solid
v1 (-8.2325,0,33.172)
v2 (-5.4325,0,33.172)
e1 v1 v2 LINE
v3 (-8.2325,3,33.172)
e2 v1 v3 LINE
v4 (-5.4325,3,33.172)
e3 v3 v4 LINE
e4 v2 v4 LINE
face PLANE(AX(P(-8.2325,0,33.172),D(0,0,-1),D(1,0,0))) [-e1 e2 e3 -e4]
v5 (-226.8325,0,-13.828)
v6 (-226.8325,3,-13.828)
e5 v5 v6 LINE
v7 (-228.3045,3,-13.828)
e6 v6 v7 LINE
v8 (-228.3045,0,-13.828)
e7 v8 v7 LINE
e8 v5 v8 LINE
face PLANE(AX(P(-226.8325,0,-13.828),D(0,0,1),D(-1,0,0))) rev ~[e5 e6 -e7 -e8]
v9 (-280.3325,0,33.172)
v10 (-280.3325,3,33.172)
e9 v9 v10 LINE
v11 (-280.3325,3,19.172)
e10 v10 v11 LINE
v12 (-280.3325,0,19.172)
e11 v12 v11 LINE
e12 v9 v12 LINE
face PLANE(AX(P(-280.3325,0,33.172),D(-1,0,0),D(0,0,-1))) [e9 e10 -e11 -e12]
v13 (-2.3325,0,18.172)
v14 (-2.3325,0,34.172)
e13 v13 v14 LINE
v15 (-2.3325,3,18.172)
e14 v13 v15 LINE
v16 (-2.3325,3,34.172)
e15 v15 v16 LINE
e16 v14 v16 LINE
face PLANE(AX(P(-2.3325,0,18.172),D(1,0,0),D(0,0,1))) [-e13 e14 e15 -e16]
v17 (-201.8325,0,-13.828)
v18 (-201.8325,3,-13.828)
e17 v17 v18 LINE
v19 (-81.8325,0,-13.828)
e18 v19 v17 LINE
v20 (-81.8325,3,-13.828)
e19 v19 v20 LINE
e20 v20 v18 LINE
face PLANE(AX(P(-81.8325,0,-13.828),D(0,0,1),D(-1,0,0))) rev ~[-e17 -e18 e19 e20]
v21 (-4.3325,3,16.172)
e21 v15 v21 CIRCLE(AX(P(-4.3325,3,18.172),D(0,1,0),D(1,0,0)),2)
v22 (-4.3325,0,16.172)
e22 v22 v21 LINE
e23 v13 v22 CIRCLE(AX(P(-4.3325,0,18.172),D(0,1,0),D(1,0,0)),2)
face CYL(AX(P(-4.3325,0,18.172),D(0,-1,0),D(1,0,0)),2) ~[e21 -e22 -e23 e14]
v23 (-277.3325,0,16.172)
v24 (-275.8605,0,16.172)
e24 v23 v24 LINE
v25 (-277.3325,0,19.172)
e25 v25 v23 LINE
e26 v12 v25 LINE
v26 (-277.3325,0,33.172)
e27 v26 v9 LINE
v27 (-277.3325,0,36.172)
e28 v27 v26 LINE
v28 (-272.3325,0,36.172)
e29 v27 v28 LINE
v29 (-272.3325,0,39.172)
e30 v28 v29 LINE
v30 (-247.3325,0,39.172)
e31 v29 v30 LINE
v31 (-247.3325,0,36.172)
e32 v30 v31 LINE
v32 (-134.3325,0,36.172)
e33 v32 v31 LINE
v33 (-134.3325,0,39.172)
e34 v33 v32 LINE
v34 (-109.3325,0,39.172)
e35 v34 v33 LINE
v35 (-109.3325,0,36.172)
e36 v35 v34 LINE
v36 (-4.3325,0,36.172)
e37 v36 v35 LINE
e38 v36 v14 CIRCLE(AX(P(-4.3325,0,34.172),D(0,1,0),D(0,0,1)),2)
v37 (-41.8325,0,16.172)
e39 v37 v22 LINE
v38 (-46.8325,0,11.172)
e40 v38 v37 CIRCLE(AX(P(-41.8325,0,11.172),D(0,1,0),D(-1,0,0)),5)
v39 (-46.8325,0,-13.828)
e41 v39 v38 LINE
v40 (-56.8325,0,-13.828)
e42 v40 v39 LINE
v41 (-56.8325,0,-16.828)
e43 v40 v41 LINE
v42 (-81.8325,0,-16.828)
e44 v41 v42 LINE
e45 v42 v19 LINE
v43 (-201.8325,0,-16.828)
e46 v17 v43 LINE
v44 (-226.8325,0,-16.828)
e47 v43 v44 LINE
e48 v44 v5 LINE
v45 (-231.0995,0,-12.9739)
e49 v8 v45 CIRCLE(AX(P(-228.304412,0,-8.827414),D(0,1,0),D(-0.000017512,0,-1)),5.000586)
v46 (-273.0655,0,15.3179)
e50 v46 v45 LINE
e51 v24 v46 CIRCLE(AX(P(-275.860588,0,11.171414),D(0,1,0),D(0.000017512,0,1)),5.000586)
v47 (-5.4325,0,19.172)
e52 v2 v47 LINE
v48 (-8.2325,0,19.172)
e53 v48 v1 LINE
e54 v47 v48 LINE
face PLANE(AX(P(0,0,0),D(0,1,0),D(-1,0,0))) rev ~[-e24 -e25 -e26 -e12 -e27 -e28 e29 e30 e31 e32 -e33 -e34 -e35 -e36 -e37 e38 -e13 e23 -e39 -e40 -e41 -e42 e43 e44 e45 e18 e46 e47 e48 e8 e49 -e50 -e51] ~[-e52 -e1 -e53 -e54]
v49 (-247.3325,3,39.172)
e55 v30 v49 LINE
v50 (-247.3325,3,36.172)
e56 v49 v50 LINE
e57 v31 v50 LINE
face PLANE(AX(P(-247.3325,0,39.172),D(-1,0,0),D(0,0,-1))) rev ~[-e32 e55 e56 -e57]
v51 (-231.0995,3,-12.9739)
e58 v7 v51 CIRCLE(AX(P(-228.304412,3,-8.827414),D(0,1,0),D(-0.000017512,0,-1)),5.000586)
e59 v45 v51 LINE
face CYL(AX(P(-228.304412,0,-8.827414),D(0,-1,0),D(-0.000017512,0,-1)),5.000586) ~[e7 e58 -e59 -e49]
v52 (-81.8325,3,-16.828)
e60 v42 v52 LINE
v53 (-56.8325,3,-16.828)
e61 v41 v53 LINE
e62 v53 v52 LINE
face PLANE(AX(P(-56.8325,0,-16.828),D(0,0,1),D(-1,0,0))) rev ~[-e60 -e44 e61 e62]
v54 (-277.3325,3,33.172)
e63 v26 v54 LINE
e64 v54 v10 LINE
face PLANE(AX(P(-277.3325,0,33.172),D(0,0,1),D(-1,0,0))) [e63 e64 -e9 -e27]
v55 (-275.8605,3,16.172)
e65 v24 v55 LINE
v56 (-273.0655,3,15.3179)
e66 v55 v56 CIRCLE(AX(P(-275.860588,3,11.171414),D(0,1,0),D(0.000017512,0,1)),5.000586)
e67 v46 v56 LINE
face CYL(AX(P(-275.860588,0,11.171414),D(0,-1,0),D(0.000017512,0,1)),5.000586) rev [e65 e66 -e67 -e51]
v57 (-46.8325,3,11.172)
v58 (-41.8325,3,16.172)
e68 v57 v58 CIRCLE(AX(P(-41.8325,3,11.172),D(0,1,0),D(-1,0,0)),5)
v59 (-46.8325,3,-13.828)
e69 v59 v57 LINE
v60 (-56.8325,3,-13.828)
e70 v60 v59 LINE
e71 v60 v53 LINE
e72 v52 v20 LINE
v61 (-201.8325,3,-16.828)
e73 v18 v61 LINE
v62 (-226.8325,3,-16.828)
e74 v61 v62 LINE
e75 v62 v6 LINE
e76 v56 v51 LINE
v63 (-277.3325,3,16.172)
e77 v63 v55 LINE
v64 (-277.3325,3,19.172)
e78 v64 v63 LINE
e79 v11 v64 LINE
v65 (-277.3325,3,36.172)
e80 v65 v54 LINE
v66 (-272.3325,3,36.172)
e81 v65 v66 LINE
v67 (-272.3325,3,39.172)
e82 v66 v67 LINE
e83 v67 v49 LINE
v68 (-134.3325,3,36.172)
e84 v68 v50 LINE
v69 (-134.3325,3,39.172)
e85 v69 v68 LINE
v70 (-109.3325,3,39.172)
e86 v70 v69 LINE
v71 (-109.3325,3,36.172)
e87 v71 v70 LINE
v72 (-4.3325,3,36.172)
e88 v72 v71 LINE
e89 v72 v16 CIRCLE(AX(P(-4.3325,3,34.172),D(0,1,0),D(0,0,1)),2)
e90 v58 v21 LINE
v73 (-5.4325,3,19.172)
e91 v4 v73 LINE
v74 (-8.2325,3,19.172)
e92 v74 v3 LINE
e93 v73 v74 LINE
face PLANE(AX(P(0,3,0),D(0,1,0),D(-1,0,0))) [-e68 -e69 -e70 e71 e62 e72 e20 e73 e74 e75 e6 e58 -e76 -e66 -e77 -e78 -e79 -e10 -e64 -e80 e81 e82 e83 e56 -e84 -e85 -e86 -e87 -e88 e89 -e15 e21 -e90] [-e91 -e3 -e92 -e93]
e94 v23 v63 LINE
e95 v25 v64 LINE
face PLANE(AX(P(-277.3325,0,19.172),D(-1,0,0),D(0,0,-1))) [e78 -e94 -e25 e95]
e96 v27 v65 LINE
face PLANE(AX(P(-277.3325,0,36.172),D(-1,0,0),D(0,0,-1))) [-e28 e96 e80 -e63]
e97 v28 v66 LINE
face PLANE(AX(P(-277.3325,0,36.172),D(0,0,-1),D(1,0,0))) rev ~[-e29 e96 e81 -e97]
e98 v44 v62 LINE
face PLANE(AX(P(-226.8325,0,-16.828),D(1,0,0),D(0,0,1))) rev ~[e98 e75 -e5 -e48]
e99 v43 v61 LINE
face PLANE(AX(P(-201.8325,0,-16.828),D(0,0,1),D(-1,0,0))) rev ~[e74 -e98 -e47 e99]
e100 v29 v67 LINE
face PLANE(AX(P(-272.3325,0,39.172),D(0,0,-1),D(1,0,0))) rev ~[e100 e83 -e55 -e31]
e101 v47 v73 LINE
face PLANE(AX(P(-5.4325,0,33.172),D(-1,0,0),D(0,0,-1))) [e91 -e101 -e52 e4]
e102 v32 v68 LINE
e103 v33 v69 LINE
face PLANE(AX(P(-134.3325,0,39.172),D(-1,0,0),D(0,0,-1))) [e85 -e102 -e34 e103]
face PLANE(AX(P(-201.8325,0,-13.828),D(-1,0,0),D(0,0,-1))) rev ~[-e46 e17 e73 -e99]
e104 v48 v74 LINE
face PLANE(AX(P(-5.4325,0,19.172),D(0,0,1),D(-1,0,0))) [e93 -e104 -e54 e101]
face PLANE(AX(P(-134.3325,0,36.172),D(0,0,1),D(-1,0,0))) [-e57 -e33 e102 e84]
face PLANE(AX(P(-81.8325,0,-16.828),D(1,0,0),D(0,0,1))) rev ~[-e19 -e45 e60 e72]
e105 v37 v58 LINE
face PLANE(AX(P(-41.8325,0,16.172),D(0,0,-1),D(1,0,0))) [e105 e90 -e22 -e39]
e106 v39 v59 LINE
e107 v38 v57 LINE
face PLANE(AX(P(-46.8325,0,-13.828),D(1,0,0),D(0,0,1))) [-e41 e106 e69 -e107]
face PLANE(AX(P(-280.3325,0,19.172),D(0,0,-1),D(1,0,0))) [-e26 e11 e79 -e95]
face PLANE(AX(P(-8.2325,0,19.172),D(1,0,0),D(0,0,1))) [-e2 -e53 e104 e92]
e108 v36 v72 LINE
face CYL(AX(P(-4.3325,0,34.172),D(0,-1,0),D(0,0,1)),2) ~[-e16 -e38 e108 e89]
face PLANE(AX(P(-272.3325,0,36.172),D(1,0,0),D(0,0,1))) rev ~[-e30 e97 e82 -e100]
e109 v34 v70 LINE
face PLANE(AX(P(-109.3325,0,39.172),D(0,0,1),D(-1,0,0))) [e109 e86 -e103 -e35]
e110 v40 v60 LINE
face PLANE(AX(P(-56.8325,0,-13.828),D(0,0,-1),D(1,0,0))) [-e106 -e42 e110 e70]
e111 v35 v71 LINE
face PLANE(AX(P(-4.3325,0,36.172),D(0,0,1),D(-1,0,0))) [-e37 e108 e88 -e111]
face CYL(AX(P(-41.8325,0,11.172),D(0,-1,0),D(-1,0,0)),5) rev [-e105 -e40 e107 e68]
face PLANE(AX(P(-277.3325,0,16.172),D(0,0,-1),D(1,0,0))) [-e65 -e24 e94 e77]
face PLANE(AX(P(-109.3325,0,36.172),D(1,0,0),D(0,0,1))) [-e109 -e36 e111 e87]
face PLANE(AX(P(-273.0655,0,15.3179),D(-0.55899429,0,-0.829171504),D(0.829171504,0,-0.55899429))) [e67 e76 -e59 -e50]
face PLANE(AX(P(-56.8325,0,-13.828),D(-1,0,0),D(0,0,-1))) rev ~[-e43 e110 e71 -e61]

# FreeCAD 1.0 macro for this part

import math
import FreeCAD as App
import Part
import Sketcher
from FreeCAD import Vector


def add_polygon(sketch, points):
    """Adds a closed chain of lines whose ends are joined by coincident constraints."""
    first, n = sketch.GeometryCount, len(points)
    for a, b in zip(points, points[1:] + points[:1]):
        sketch.addGeometry(Part.LineSegment(App.Vector(*a, 0), App.Vector(*b, 0)), False)
    for i in range(n):
        sketch.addConstraint(Sketcher.Constraint("Coincident", first + i, 2, first + (i + 1) % n, 1))

doc = App.newDocument("Part")
body = doc.addObject("PartDesign::Body", "Body")

sketch1 = doc.addObject("Sketcher::SketchObject", "Sketch")
body.addObject(sketch1)
sketch1.AttachmentSupport = (doc.XZ_Plane, [""])
sketch1.MapMode = "FlatFace"
sketch1.addGeometry(Part.LineSegment(Vector(-109.3, 36.2, 0), Vector(-4.3, 36.2, 0)), False)
sketch1.addGeometry(Part.ArcOfCircle(Part.Circle(Vector(-4.3, 34.2, 0), Vector(0, 0, 1), 2), math.radians(0), math.radians(90)), False)
sketch1.addGeometry(Part.LineSegment(Vector(-2.3, 34.2, 0), Vector(-2.3, 18.2, 0)), False)
sketch1.addGeometry(Part.ArcOfCircle(Part.Circle(Vector(-4.3, 18.2, 0), Vector(0, 0, 1), 2), math.radians(-90), math.radians(0)), False)
sketch1.addGeometry(Part.LineSegment(Vector(-4.3, 16.2, 0), Vector(-41.8, 16.2, 0)), False)
sketch1.addGeometry(Part.ArcOfCircle(Part.Circle(Vector(-41.8, 11.2, 0), Vector(0, 0, 1), 5), math.radians(90), math.radians(180)), False)
sketch1.addGeometry(Part.LineSegment(Vector(-46.8, 11.2, 0), Vector(-46.8, -13.8, 0)), False)
sketch1.addGeometry(Part.LineSegment(Vector(-46.8, -13.8, 0), Vector(-56.8, -13.8, 0)), False)
sketch1.addGeometry(Part.LineSegment(Vector(-56.8, -13.8, 0), Vector(-56.8, -16.8, 0)), False)
sketch1.addGeometry(Part.LineSegment(Vector(-56.8, -16.8, 0), Vector(-81.8, -16.8, 0)), False)
sketch1.addGeometry(Part.LineSegment(Vector(-81.8, -16.8, 0), Vector(-81.8, -13.8, 0)), False)
sketch1.addGeometry(Part.LineSegment(Vector(-81.8, -13.8, 0), Vector(-201.8, -13.8, 0)), False)
sketch1.addGeometry(Part.LineSegment(Vector(-201.8, -13.8, 0), Vector(-201.8, -16.8, 0)), False)
sketch1.addGeometry(Part.LineSegment(Vector(-201.8, -16.8, 0), Vector(-226.8, -16.8, 0)), False)
sketch1.addGeometry(Part.LineSegment(Vector(-226.8, -16.8, 0), Vector(-226.8, -13.8, 0)), False)
sketch1.addGeometry(Part.LineSegment(Vector(-226.8, -13.8, 0), Vector(-228.3, -13.8, 0)), False)
sketch1.addGeometry(Part.ArcOfCircle(Part.Circle(Vector(-228.3, -8.8, 0), Vector(0, 0, 1), 5), math.radians(-124), math.radians(-90)), False)
sketch1.addGeometry(Part.LineSegment(Vector(-231.1, -13, 0), Vector(-273.1, 15.3, 0)), False)
sketch1.addGeometry(Part.ArcOfCircle(Part.Circle(Vector(-275.9, 11.2, 0), Vector(0, 0, 1), 5), math.radians(56), math.radians(90)), False)
sketch1.addGeometry(Part.LineSegment(Vector(-275.9, 16.2, 0), Vector(-277.3, 16.2, 0)), False)
sketch1.addGeometry(Part.LineSegment(Vector(-277.3, 16.2, 0), Vector(-277.3, 19.2, 0)), False)
sketch1.addGeometry(Part.LineSegment(Vector(-277.3, 19.2, 0), Vector(-280.3, 19.2, 0)), False)
sketch1.addGeometry(Part.LineSegment(Vector(-280.3, 19.2, 0), Vector(-280.3, 33.2, 0)), False)
sketch1.addGeometry(Part.LineSegment(Vector(-280.3, 33.2, 0), Vector(-277.3, 33.2, 0)), False)
sketch1.addGeometry(Part.LineSegment(Vector(-277.3, 33.2, 0), Vector(-277.3, 36.2, 0)), False)
sketch1.addGeometry(Part.LineSegment(Vector(-277.3, 36.2, 0), Vector(-272.3, 36.2, 0)), False)
sketch1.addGeometry(Part.LineSegment(Vector(-272.3, 36.2, 0), Vector(-272.3, 39.2, 0)), False)
sketch1.addGeometry(Part.LineSegment(Vector(-272.3, 39.2, 0), Vector(-247.3, 39.2, 0)), False)
sketch1.addGeometry(Part.LineSegment(Vector(-247.3, 39.2, 0), Vector(-247.3, 36.2, 0)), False)
sketch1.addGeometry(Part.LineSegment(Vector(-247.3, 36.2, 0), Vector(-134.3, 36.2, 0)), False)
sketch1.addGeometry(Part.LineSegment(Vector(-134.3, 36.2, 0), Vector(-134.3, 39.2, 0)), False)
sketch1.addGeometry(Part.LineSegment(Vector(-134.3, 39.2, 0), Vector(-109.3, 39.2, 0)), False)
sketch1.addGeometry(Part.LineSegment(Vector(-109.3, 39.2, 0), Vector(-109.3, 36.2, 0)), False)
add_polygon(sketch1, [(-8.2, 19.2), (-5.4, 19.2), (-5.4, 33.2), (-8.2, 33.2)])
sketch1.addConstraint(Sketcher.Constraint("Tangent", 0, 2, 1, 2))
sketch1.addConstraint(Sketcher.Constraint("Tangent", 1, 1, 2, 1))
sketch1.addConstraint(Sketcher.Constraint("Tangent", 2, 2, 3, 2))
sketch1.addConstraint(Sketcher.Constraint("Tangent", 3, 1, 4, 1))
sketch1.addConstraint(Sketcher.Constraint("Tangent", 4, 2, 5, 1))
sketch1.addConstraint(Sketcher.Constraint("Tangent", 5, 2, 6, 1))
sketch1.addConstraint(Sketcher.Constraint("Coincident", 6, 2, 7, 1))
sketch1.addConstraint(Sketcher.Constraint("Coincident", 7, 2, 8, 1))
sketch1.addConstraint(Sketcher.Constraint("Coincident", 8, 2, 9, 1))
sketch1.addConstraint(Sketcher.Constraint("Coincident", 9, 2, 10, 1))
sketch1.addConstraint(Sketcher.Constraint("Coincident", 10, 2, 11, 1))
sketch1.addConstraint(Sketcher.Constraint("Coincident", 11, 2, 12, 1))
sketch1.addConstraint(Sketcher.Constraint("Coincident", 12, 2, 13, 1))
sketch1.addConstraint(Sketcher.Constraint("Coincident", 13, 2, 14, 1))
sketch1.addConstraint(Sketcher.Constraint("Coincident", 14, 2, 15, 1))
sketch1.addConstraint(Sketcher.Constraint("Tangent", 15, 2, 16, 2))
sketch1.addConstraint(Sketcher.Constraint("Tangent", 16, 1, 17, 1))
sketch1.addConstraint(Sketcher.Constraint("Tangent", 17, 2, 18, 1))
sketch1.addConstraint(Sketcher.Constraint("Tangent", 18, 2, 19, 1))
sketch1.addConstraint(Sketcher.Constraint("Coincident", 19, 2, 20, 1))
sketch1.addConstraint(Sketcher.Constraint("Coincident", 20, 2, 21, 1))
sketch1.addConstraint(Sketcher.Constraint("Coincident", 21, 2, 22, 1))
sketch1.addConstraint(Sketcher.Constraint("Coincident", 22, 2, 23, 1))
sketch1.addConstraint(Sketcher.Constraint("Coincident", 23, 2, 24, 1))
sketch1.addConstraint(Sketcher.Constraint("Coincident", 24, 2, 25, 1))
sketch1.addConstraint(Sketcher.Constraint("Coincident", 25, 2, 26, 1))
sketch1.addConstraint(Sketcher.Constraint("Coincident", 26, 2, 27, 1))
sketch1.addConstraint(Sketcher.Constraint("Coincident", 27, 2, 28, 1))
sketch1.addConstraint(Sketcher.Constraint("Coincident", 28, 2, 29, 1))
sketch1.addConstraint(Sketcher.Constraint("Coincident", 29, 2, 30, 1))
sketch1.addConstraint(Sketcher.Constraint("Coincident", 30, 2, 31, 1))
sketch1.addConstraint(Sketcher.Constraint("Coincident", 31, 2, 32, 1))
sketch1.addConstraint(Sketcher.Constraint("Coincident", 32, 2, 0, 1))
sketch1.addConstraint(Sketcher.Constraint("Horizontal", 0))
sketch1.addConstraint(Sketcher.Constraint("Vertical", 2))
sketch1.addConstraint(Sketcher.Constraint("Horizontal", 4))
sketch1.addConstraint(Sketcher.Constraint("Vertical", 6))
sketch1.addConstraint(Sketcher.Constraint("Horizontal", 7))
sketch1.addConstraint(Sketcher.Constraint("Vertical", 8))
sketch1.addConstraint(Sketcher.Constraint("Horizontal", 9))
sketch1.addConstraint(Sketcher.Constraint("Vertical", 10))
sketch1.addConstraint(Sketcher.Constraint("Horizontal", 11))
sketch1.addConstraint(Sketcher.Constraint("Vertical", 12))
sketch1.addConstraint(Sketcher.Constraint("Horizontal", 13))
sketch1.addConstraint(Sketcher.Constraint("Vertical", 14))
sketch1.addConstraint(Sketcher.Constraint("Horizontal", 15))
sketch1.addConstraint(Sketcher.Constraint("Horizontal", 19))
sketch1.addConstraint(Sketcher.Constraint("Vertical", 20))
sketch1.addConstraint(Sketcher.Constraint("Horizontal", 21))
sketch1.addConstraint(Sketcher.Constraint("Vertical", 22))
sketch1.addConstraint(Sketcher.Constraint("Horizontal", 23))
sketch1.addConstraint(Sketcher.Constraint("Vertical", 24))
sketch1.addConstraint(Sketcher.Constraint("Horizontal", 25))
sketch1.addConstraint(Sketcher.Constraint("Vertical", 26))
sketch1.addConstraint(Sketcher.Constraint("Horizontal", 27))
sketch1.addConstraint(Sketcher.Constraint("Vertical", 28))
sketch1.addConstraint(Sketcher.Constraint("Horizontal", 29))
sketch1.addConstraint(Sketcher.Constraint("Vertical", 30))
sketch1.addConstraint(Sketcher.Constraint("Horizontal", 31))
sketch1.addConstraint(Sketcher.Constraint("Vertical", 32))
sketch1.addConstraint(Sketcher.Constraint("Horizontal", 33))
sketch1.addConstraint(Sketcher.Constraint("Vertical", 34))
sketch1.addConstraint(Sketcher.Constraint("Horizontal", 35))
sketch1.addConstraint(Sketcher.Constraint("Vertical", 36))
sketch1.addConstraint(Sketcher.Constraint("Equal", 1, 3))
sketch1.addConstraint(Sketcher.Constraint("Equal", 5, 16))
sketch1.addConstraint(Sketcher.Constraint("Equal", 16, 18))
sketch1.addConstraint(Sketcher.Constraint("Horizontal", 5, 3, 18, 3))
sketch1.addConstraint(Sketcher.Constraint("Horizontal", 7, 2, 10, 2))
sketch1.addConstraint(Sketcher.Constraint("Horizontal", 9, 2, 12, 2))
sketch1.addConstraint(Sketcher.Constraint("Horizontal", 11, 2, 14, 2))
sketch1.addConstraint(Sketcher.Constraint("Horizontal", 0, 2, 24, 2))
sketch1.addConstraint(Sketcher.Constraint("Horizontal", 25, 2, 28, 2))
sketch1.addConstraint(Sketcher.Constraint("Horizontal", 27, 2, 30, 2))
sketch1.addConstraint(Sketcher.Constraint("Horizontal", 21, 2, 33, 2))
sketch1.addConstraint(Sketcher.Constraint("Horizontal", 23, 2, 34, 2))
sketch1.addConstraint(Sketcher.Constraint("Vertical", 20, 2, 23, 2))
sketch1.addConstraint(Sketcher.Constraint("Equal", 9, 13))
sketch1.addConstraint(Sketcher.Constraint("Equal", 15, 19))
sketch1.addConstraint(Sketcher.Constraint("Equal", 13, 27))
sketch1.addConstraint(Sketcher.Constraint("Equal", 27, 31))
sketch1.addConstraint(Sketcher.Constraint("Equal", 31, 6))
sketch1.addConstraint(Sketcher.Constraint("Equal", 23, 8))
sketch1.addConstraint(Sketcher.Constraint("Equal", 14, 20))
sketch1.addConstraint(Sketcher.Constraint("Equal", 20, 24))
sketch1.addConstraint(Sketcher.Constraint("Equal", 24, 26))
sketch1.addConstraint(Sketcher.Constraint("Radius", 1, 2.0))
sketch1.addConstraint(Sketcher.Constraint("Radius", 5, 5.0))
sketch1.addConstraint(Sketcher.Constraint("DistanceX", 0, 1, 0, 2, 105.0))
sketch1.addConstraint(Sketcher.Constraint("DistanceX", 7, 2, 7, 1, 10.0))
sketch1.addConstraint(Sketcher.Constraint("DistanceX", 9, 2, 9, 1, 25.0))
sketch1.addConstraint(Sketcher.Constraint("DistanceX", 11, 2, 11, 1, 120.0))
sketch1.addConstraint(Sketcher.Constraint("DistanceX", 21, 2, 21, 1, 3.0))
sketch1.addConstraint(Sketcher.Constraint("DistanceX", 25, 1, 25, 2, 5.0))
sketch1.addConstraint(Sketcher.Constraint("DistanceX", 29, 1, 29, 2, 113.0))
sketch1.addConstraint(Sketcher.Constraint("DistanceY", 2, 2, 2, 1, 16.0))
sketch1.addConstraint(Sketcher.Constraint("DistanceX", 4, 2, 4, 1, 37.5))
sketch1.addConstraint(Sketcher.Constraint("DistanceX", 33, 1, 33, 2, 2.8))
sketch1.addConstraint(Sketcher.Constraint("DistanceX", 33, 2, 3, 3, 1.1))
sketch1.addConstraint(Sketcher.Constraint("DistanceX", 15, 2, 15, 1, 1.472))
sketch1.addConstraint(Sketcher.Constraint("DistanceY", -1, 1, 1, 3, 34.172))
sketch1.addConstraint(Sketcher.Constraint("DistanceX", 1, 3, -1, 1, 4.3325))
pad1 = doc.addObject("PartDesign::Pad", "Pad")
body.addObject(pad1)
pad1.Profile = sketch1
pad1.Length = 3
pad1.Reversed = True

doc.recompute()
